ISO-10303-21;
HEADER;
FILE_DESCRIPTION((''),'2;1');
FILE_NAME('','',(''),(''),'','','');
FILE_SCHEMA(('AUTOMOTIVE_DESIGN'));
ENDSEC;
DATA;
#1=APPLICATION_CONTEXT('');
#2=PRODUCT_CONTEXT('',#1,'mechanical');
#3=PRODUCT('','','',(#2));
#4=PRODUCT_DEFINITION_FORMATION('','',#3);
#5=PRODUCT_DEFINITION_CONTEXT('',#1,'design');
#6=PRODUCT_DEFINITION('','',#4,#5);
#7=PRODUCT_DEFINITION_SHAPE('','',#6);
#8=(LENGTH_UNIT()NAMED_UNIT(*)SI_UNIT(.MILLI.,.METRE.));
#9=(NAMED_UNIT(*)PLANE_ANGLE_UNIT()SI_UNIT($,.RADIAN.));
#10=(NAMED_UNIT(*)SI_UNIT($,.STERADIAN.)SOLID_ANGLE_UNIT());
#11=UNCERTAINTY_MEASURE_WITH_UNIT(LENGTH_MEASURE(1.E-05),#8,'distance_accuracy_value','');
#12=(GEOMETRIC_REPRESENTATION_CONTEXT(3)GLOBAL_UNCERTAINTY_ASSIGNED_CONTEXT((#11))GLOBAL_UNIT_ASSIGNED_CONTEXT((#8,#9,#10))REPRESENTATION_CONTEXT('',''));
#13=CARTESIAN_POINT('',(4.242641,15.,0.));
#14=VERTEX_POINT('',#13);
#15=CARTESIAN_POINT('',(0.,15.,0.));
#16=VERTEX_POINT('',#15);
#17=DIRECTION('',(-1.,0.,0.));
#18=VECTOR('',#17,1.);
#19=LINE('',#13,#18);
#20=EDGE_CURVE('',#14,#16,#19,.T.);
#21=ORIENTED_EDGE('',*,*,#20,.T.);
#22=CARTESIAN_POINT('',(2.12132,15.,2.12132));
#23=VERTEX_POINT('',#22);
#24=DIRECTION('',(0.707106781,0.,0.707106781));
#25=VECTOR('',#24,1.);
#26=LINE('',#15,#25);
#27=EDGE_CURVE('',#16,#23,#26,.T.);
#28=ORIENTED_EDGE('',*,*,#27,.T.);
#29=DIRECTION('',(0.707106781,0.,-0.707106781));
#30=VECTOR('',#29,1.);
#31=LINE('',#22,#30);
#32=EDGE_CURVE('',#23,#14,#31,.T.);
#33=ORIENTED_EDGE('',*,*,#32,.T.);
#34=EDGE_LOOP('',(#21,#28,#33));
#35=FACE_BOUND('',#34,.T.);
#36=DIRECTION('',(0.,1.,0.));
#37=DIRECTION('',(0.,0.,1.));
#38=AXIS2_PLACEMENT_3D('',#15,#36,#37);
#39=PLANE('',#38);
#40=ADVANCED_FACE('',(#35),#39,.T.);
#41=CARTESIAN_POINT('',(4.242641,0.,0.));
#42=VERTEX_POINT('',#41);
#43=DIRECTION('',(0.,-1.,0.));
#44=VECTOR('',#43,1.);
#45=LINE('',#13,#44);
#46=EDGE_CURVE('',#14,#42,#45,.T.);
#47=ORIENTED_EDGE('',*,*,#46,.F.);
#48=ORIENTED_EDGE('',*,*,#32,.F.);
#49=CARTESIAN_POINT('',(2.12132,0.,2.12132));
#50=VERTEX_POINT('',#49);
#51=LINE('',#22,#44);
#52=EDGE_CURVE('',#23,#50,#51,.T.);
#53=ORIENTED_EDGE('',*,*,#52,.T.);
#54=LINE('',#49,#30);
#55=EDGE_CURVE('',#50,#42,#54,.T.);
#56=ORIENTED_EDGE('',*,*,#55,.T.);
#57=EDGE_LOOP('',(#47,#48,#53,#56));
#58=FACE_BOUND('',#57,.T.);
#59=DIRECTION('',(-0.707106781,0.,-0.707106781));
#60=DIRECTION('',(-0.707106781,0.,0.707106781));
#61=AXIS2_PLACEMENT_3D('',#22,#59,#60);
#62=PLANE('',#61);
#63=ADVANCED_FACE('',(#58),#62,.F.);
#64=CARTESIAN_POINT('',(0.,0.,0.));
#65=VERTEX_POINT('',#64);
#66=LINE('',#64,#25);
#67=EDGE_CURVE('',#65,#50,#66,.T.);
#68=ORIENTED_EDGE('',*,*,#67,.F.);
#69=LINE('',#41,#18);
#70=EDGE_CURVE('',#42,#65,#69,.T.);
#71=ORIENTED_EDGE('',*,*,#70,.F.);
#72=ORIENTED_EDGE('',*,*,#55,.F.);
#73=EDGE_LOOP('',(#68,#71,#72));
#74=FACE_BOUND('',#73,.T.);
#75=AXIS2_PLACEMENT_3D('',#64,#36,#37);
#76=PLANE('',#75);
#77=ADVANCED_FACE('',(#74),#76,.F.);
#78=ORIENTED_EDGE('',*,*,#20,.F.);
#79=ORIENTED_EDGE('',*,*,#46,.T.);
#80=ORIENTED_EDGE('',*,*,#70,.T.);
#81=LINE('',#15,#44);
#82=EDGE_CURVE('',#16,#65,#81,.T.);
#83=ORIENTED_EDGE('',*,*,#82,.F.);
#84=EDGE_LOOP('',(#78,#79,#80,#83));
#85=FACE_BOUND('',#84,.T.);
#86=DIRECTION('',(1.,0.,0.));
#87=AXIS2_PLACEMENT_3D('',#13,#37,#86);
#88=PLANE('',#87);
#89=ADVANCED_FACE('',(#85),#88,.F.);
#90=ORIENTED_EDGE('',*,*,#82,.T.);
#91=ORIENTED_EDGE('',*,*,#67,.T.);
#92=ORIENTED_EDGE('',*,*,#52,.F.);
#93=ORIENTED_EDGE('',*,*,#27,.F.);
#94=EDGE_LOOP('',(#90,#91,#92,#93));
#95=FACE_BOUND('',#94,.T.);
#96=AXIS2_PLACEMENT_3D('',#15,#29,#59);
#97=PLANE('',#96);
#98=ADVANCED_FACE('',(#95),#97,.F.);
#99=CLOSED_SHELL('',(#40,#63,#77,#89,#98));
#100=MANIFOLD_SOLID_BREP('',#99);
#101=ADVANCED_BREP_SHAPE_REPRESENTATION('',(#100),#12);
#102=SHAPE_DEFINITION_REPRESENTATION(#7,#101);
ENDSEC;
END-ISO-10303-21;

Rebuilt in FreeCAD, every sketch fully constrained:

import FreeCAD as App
import Part
import Sketcher

V = App.Vector


def add_polygon(sketch, points):
    """Adds a closed chain of lines whose ends are joined by coincident constraints."""
    first, n = sketch.GeometryCount, len(points)
    for a, b in zip(points, points[1:] + points[:1]):
        sketch.addGeometry(Part.LineSegment(App.Vector(*a, 0), App.Vector(*b, 0)), False)
    for i in range(n):
        sketch.addConstraint(Sketcher.Constraint("Coincident", first + i, 2, first + (i + 1) % n, 1))

doc = App.newDocument("Part")
body = doc.addObject("PartDesign::Body", "Body")

sketch1 = body.newObject("Sketcher::SketchObject", "Sketch")
sketch1.AttachmentSupport = (doc.getObject("XZ_Plane"), [""])
sketch1.MapMode = "FlatFace"
add_polygon(sketch1, [(0, 0), (2.1, 2.1), (4.2, 0)])
sketch1.addConstraint([
    Sketcher.Constraint("Horizontal", 2),
    Sketcher.Constraint("Coincident", 2, 2, -1, 1),
    Sketcher.Constraint("Perpendicular", 0, 1),
    Sketcher.Constraint("Equal", 0, 1),
    Sketcher.Constraint("Distance", 0, 3.0),
])
pad1 = body.newObject("PartDesign::Pad", "Pad")
pad1.Profile = sketch1
pad1.Length = 15
pad1.Reversed = True

doc.recompute()
